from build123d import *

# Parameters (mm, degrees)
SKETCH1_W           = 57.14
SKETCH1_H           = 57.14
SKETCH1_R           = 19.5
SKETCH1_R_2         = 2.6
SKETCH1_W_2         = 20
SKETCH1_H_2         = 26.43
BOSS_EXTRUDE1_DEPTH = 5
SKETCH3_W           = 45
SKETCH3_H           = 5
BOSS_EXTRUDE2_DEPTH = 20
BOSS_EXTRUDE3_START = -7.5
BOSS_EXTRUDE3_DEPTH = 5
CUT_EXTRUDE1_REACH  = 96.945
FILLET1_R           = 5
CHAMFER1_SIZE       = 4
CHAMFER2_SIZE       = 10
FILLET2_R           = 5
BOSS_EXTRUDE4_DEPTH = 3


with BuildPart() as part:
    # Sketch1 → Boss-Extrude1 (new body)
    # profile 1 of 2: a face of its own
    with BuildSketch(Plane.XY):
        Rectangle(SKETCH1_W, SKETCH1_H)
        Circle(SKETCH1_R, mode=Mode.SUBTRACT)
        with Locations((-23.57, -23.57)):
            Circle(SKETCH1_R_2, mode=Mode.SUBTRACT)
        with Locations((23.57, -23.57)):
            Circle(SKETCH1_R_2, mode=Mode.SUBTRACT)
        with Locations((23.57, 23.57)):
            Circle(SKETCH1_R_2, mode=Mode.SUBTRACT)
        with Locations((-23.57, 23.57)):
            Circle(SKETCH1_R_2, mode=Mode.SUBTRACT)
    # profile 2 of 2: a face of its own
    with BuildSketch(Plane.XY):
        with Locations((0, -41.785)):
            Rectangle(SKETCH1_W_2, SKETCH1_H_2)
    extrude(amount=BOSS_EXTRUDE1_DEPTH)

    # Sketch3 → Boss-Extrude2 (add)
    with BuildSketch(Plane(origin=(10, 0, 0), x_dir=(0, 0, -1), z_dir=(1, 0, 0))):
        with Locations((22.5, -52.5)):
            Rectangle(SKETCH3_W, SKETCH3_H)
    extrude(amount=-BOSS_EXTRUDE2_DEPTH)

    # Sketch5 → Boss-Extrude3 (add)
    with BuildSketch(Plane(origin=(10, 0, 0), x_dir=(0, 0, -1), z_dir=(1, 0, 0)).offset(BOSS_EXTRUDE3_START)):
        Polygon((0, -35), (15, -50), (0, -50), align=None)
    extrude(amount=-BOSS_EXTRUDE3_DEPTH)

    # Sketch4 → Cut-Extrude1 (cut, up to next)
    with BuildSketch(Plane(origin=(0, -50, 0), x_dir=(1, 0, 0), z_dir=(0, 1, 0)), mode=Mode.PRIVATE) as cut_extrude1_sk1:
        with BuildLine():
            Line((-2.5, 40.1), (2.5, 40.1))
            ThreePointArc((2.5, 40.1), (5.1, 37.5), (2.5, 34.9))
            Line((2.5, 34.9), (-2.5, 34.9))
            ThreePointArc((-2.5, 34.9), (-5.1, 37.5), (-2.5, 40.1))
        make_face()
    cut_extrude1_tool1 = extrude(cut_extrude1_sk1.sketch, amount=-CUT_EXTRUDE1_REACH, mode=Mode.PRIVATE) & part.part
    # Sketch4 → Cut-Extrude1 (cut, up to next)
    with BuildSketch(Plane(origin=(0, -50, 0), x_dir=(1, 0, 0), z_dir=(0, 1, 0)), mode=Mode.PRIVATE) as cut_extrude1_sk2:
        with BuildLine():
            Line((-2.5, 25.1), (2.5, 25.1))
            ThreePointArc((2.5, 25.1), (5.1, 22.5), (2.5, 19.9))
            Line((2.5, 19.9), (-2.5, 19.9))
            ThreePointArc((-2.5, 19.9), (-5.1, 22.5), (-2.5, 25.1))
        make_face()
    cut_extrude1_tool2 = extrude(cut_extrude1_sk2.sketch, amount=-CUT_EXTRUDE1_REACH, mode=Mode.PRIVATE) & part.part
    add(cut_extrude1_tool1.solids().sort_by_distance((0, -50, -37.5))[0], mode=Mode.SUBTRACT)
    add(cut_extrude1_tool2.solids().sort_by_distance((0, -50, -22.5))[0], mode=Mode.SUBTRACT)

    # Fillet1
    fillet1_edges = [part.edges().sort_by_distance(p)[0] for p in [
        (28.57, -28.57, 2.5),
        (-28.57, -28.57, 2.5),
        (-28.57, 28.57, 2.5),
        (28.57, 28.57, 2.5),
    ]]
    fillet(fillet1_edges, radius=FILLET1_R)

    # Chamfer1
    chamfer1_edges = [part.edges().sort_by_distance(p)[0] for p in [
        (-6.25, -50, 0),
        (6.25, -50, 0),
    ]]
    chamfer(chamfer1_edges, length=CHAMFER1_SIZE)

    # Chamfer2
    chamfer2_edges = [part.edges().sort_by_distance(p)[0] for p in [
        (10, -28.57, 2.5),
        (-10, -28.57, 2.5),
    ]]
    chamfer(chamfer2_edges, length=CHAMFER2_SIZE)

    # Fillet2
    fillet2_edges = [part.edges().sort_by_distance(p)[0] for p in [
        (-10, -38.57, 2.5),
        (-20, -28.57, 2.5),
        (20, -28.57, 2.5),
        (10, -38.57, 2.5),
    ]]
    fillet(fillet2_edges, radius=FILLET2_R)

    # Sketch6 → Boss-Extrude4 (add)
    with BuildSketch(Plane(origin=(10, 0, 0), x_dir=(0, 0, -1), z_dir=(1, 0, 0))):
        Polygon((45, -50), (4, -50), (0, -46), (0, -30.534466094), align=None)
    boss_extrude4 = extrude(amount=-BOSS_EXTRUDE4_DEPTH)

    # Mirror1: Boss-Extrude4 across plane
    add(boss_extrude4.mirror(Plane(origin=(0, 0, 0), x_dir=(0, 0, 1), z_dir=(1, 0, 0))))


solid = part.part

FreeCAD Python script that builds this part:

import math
import FreeCAD as App
import Part
import Sketcher

V = App.Vector
Q = App.Units.Quantity


def edges_at(feature, points):
    """Names of the edges that pass closest to the given points."""
    edges = feature.Shape.Edges
    near = lambda p: min(range(len(edges)), key=lambda i: edges[i].distToShape(Part.Vertex(*p))[0])
    return sorted({f"Edge{near(p) + 1}" for p in points})

doc = App.newDocument("Part")
body = doc.addObject("PartDesign::Body", "Body")

# Sketch on XY plane
sketch1 = body.newObject("Sketcher::SketchObject", "Sketch")
sketch1.AttachmentSupport = (doc.getObject("XY_Plane"), [""])
sketch1.MapMode = "FlatFace"
sketch1.addGeometry([
    Part.LineSegment(V(-28.57, 28.57, 0), V(-28.57, -28.57, 0)),  # 0
    Part.LineSegment(V(-28.57, -28.57, 0), V(-10, -28.57, 0)),  # 1
    Part.LineSegment(V(-10, -28.57, 0), V(-10, -55, 0)),  # 2
    Part.LineSegment(V(-10, -55, 0), V(10, -55, 0)),  # 3
    Part.LineSegment(V(10, -55, 0), V(10, -28.57, 0)),  # 4
    Part.LineSegment(V(10, -28.57, 0), V(28.57, -28.57, 0)),  # 5
    Part.LineSegment(V(28.57, -28.57, 0), V(28.57, 28.57, 0)),  # 6
    Part.LineSegment(V(28.57, 28.57, 0), V(-28.57, 28.57, 0)),  # 7
    Part.Circle(V(-23.57, -23.57, 0), V(0, 0, 1), 2.6),  # 8
    Part.Circle(V(0, 0, 0), V(0, 0, 1), 19.5),  # 9
    Part.Circle(V(23.57, -23.57, 0), V(0, 0, 1), 2.6),  # 10
    Part.Circle(V(-23.57, 23.57, 0), V(0, 0, 1), 2.6),  # 11
    Part.Circle(V(23.57, 23.57, 0), V(0, 0, 1), 2.6),  # 12
], False)
sketch1.addConstraint([
    Sketcher.Constraint("Coincident", 0, 2, 1, 1),
    Sketcher.Constraint("Coincident", 1, 2, 2, 1),
    Sketcher.Constraint("Coincident", 2, 2, 3, 1),
    Sketcher.Constraint("Coincident", 3, 2, 4, 1),
    Sketcher.Constraint("Coincident", 4, 2, 5, 1),
    Sketcher.Constraint("Coincident", 5, 2, 6, 1),
    Sketcher.Constraint("Coincident", 6, 2, 7, 1),
    Sketcher.Constraint("Coincident", 7, 2, 0, 1),
    Sketcher.Constraint("Vertical", 0),
    Sketcher.Constraint("Horizontal", 1),
    Sketcher.Constraint("Vertical", 2),
    Sketcher.Constraint("Horizontal", 3),
    Sketcher.Constraint("Vertical", 4),
    Sketcher.Constraint("Horizontal", 5),
    Sketcher.Constraint("Vertical", 6),
    Sketcher.Constraint("Horizontal", 7),
    Sketcher.Constraint("Coincident", 9, 3, -1, 1),
    Sketcher.Constraint("Equal", 8, 10),
    Sketcher.Constraint("Equal", 10, 11),
    Sketcher.Constraint("Equal", 11, 12),
    Sketcher.Constraint("Symmetric", 10, 3, 11, 3, -1, 1),
    Sketcher.Constraint("Symmetric", 8, 3, 12, 3, -1, 1),
    Sketcher.Constraint("Symmetric", 0, 2, 6, 2, -1, 1),
    Sketcher.Constraint("Symmetric", 8, 3, 10, 3, -2),
    Sketcher.Constraint("Symmetric", 1, 2, 4, 2, -2),
    Sketcher.Constraint("Equal", 7, 0),
    Sketcher.Constraint("Diameter", 9, 39.0),
    Sketcher.Constraint("Diameter", 8, 5.2),
    Sketcher.Constraint("DistanceX", 3, 1, 3, 2, 20.0),
    Sketcher.Constraint("DistanceY", 2, 2, -1, 1, 55.0),
    Sketcher.Constraint("DistanceX", 0, 2, 8, 3, 5.0),
    Sketcher.Constraint("DistanceY", 0, 2, 8, 3, 5.0),
    Sketcher.Constraint("DistanceX", 1, 1, 1, 2, 18.57),
])
pad1 = body.newObject("PartDesign::Pad", "Pad")
pad1.Profile = sketch1
pad1.Length = 5

# Sketch on YZ plane
sketch2 = body.newObject("Sketcher::SketchObject", "Sketch001")
sketch2.AttachmentSupport = (doc.getObject("YZ_Plane"), [""])
sketch2.MapMode = "FlatFace"
sketch2.AttachmentOffset = App.Placement(V(0, 0, 10), App.Rotation())
sketch2.addGeometry([
    Part.LineSegment(V(-50, 0, 0), V(-55, 0, 0)),
    Part.LineSegment(V(-55, 0, 0), V(-55, -45, 0)),
    Part.LineSegment(V(-55, -45, 0), V(-50, -45, 0)),
    Part.LineSegment(V(-50, -45, 0), V(-50, 0, 0)),
], False)
sketch2.addConstraint([
    Sketcher.Constraint("Coincident", 0, 2, 1, 1),
    Sketcher.Constraint("Coincident", 1, 2, 2, 1),
    Sketcher.Constraint("Coincident", 2, 2, 3, 1),
    Sketcher.Constraint("Coincident", 3, 2, 0, 1),
    Sketcher.Constraint("Horizontal", 0),
    Sketcher.Constraint("Vertical", 1),
    Sketcher.Constraint("Horizontal", 2),
    Sketcher.Constraint("Vertical", 3),
    Sketcher.Constraint("PointOnObject", 0, 2, -1),
    Sketcher.Constraint("DistanceX", 0, 2, 0, 1, 5.0),
    Sketcher.Constraint("DistanceY", 1, 2, 1, 1, 45.0),
    Sketcher.Constraint("DistanceX", 0, 2, -1, 1, 55.0),
])
pad2 = body.newObject("PartDesign::Pad", "Pad001")
pad2.Profile = sketch2
pad2.Length = 20
pad2.Reversed = True

# Sketch on YZ plane
sketch3 = body.newObject("Sketcher::SketchObject", "Sketch002")
sketch3.AttachmentSupport = (doc.getObject("YZ_Plane"), [""])
sketch3.MapMode = "FlatFace"
sketch3.AttachmentOffset = App.Placement(V(0, 0, 2.5), App.Rotation())
sketch3.addGeometry([
    Part.LineSegment(V(-50, -15, 0), V(-35, 0, 0)),
    Part.LineSegment(V(-35, 0, 0), V(-50, 0, 0)),
    Part.LineSegment(V(-50, 0, 0), V(-50, -15, 0)),
], False)
sketch3.addConstraint([
    Sketcher.Constraint("Coincident", 0, 2, 1, 1),
    Sketcher.Constraint("Coincident", 1, 2, 2, 1),
    Sketcher.Constraint("Coincident", 2, 2, 0, 1),
    Sketcher.Constraint("Horizontal", 1),
    Sketcher.Constraint("Vertical", 2),
    Sketcher.Constraint("PointOnObject", 0, 2, -1),
    Sketcher.Constraint("Equal", 1, 2),
    Sketcher.Constraint("DistanceX", 1, 2, 1, 1, 15.0),
    Sketcher.Constraint("DistanceX", 0, 2, -1, 1, 35.0),
])
pad3 = body.newObject("PartDesign::Pad", "Pad002")
pad3.Profile = sketch3
pad3.Length = 5
pad3.Reversed = True

# Sketch on XZ plane
sketch4 = body.newObject("Sketcher::SketchObject", "Sketch003")
sketch4.AttachmentSupport = (doc.getObject("XZ_Plane"), [""])
sketch4.MapMode = "FlatFace"
sketch4.AttachmentOffset = App.Placement(V(0, 0, 50), App.Rotation())
sketch4.addGeometry([
    Part.LineSegment(V(2.5, -40.1, 0), V(-2.5, -40.1, 0)),
    Part.ArcOfCircle(Part.Circle(V(-2.5, -37.5, 0), V(0, 0, 1), 2.6), math.radians(90), math.radians(270)),
    Part.LineSegment(V(-2.5, -34.9, 0), V(2.5, -34.9, 0)),
    Part.ArcOfCircle(Part.Circle(V(2.5, -37.5, 0), V(0, 0, 1), 2.6), math.radians(-90), math.radians(90)),
], False)
sketch4.addConstraint([
    Sketcher.Constraint("Tangent", 0, 2, 1, 2),
    Sketcher.Constraint("Tangent", 1, 1, 2, 1),
    Sketcher.Constraint("Tangent", 2, 2, 3, 2),
    Sketcher.Constraint("Tangent", 3, 1, 0, 1),
    Sketcher.Constraint("Horizontal", 0),
    Sketcher.Constraint("Horizontal", 2),
    Sketcher.Constraint("Radius", 1, 2.6),
    Sketcher.Constraint("DistanceX", 0, 2, 0, 1, 5.0),
    Sketcher.Constraint("DistanceX", 1, 3, -1, 1, 2.5),
    Sketcher.Constraint("DistanceY", 1, 3, -1, 1, 37.5),
])
pocket1 = body.newObject("PartDesign::Pocket", "Pocket")
pocket1.Profile = sketch4
pocket1.Type = "UpToFirst"
pocket1.Reversed = True

# Sketch on XZ plane
sketch5 = body.newObject("Sketcher::SketchObject", "Sketch004")
sketch5.AttachmentSupport = (doc.getObject("XZ_Plane"), [""])
sketch5.MapMode = "FlatFace"
sketch5.AttachmentOffset = App.Placement(V(0, 0, 50), App.Rotation())
sketch5.addGeometry([
    Part.LineSegment(V(2.5, -25.1, 0), V(-2.5, -25.1, 0)),
    Part.ArcOfCircle(Part.Circle(V(-2.5, -22.5, 0), V(0, 0, 1), 2.6), math.radians(90), math.radians(270)),
    Part.LineSegment(V(-2.5, -19.9, 0), V(2.5, -19.9, 0)),
    Part.ArcOfCircle(Part.Circle(V(2.5, -22.5, 0), V(0, 0, 1), 2.6), math.radians(-90), math.radians(90)),
], False)
sketch5.addConstraint([
    Sketcher.Constraint("Tangent", 0, 2, 1, 2),
    Sketcher.Constraint("Tangent", 1, 1, 2, 1),
    Sketcher.Constraint("Tangent", 2, 2, 3, 2),
    Sketcher.Constraint("Tangent", 3, 1, 0, 1),
    Sketcher.Constraint("Horizontal", 0),
    Sketcher.Constraint("Horizontal", 2),
    Sketcher.Constraint("Radius", 1, 2.6),
    Sketcher.Constraint("DistanceX", 0, 2, 0, 1, 5.0),
    Sketcher.Constraint("DistanceX", 1, 3, -1, 1, 2.5),
    Sketcher.Constraint("DistanceY", 1, 3, -1, 1, 22.5),
])
pocket2 = body.newObject("PartDesign::Pocket", "Pocket001")
pocket2.Profile = sketch5
pocket2.Type = "UpToFirst"
pocket2.Reversed = True
doc.recompute()

fillet = body.newObject("PartDesign::Fillet", "Fillet")
fillet.Base = (pocket2, edges_at(pocket2, [
    (28.57, -28.57, 2.5),
    (-28.57, -28.57, 2.5),
    (-28.57, 28.57, 2.5),
    (28.57, 28.57, 2.5),
]))
fillet.Radius = 5
doc.recompute()

chamfer = body.newObject("PartDesign::Chamfer", "Chamfer")
chamfer.Base = (fillet, edges_at(fillet, [(-6.25, -50, 0), (6.25, -50, 0)]))
chamfer.Size = 4
doc.recompute()

chamfer2 = body.newObject("PartDesign::Chamfer", "Chamfer001")
chamfer2.Base = (chamfer, edges_at(chamfer, [(10, -28.57, 2.5), (-10, -28.57, 2.5)]))
chamfer2.Size = 10
doc.recompute()

fillet2 = body.newObject("PartDesign::Fillet", "Fillet001")
fillet2.Base = (chamfer2, edges_at(chamfer2, [
    (-10, -38.57, 2.5),
    (-20, -28.57, 2.5),
    (20, -28.57, 2.5),
    (10, -38.57, 2.5),
]))
fillet2.Radius = 5

# Sketch on YZ plane
sketch6 = body.newObject("Sketcher::SketchObject", "Sketch005")
sketch6.AttachmentSupport = (doc.getObject("YZ_Plane"), [""])
sketch6.MapMode = "FlatFace"
sketch6.AttachmentOffset = App.Placement(V(0, 0, 10), App.Rotation())
sketch6.addGeometry([
    Part.LineSegment(V(-50, -4, 0), V(-50, -45, 0)),
    Part.LineSegment(V(-50, -45, 0), V(-30.534466, 0, 0)),
    Part.LineSegment(V(-30.534466, 0, 0), V(-46, 0, 0)),
    Part.LineSegment(V(-46, 0, 0), V(-50, -4, 0)),
], False)
sketch6.addConstraint([
    Sketcher.Constraint("Coincident", 0, 2, 1, 1),
    Sketcher.Constraint("Coincident", 1, 2, 2, 1),
    Sketcher.Constraint("Coincident", 2, 2, 3, 1),
    Sketcher.Constraint("Coincident", 3, 2, 0, 1),
    Sketcher.Constraint("Vertical", 0),
    Sketcher.Constraint("Horizontal", 2),
    Sketcher.Constraint("PointOnObject", 1, 2, -1),
    Sketcher.Constraint("DistanceY", 0, 2, 0, 1, 41.0),
    Sketcher.Constraint("Angle", 3, Q("-135 deg")),
    Sketcher.Constraint("DistanceX", 0, 2, -1, 1, 50.0),
    Sketcher.Constraint("DistanceY", 0, 2, -1, 1, 45.0),
    Sketcher.Constraint("DistanceX", 2, 2, 2, 1, 15.465534),
])
pad4 = body.newObject("PartDesign::Pad", "Pad003")
pad4.Profile = sketch6
pad4.Length = 3
pad4.Reversed = True
doc.recompute()

mirrored = body.newObject("PartDesign::Mirrored", "Mirrored")
mirrored.Originals = [pad4]
mirrored.MirrorPlane = (doc.getObject("YZ_Plane"), [""])
body.Tip = mirrored

doc.recompute()
